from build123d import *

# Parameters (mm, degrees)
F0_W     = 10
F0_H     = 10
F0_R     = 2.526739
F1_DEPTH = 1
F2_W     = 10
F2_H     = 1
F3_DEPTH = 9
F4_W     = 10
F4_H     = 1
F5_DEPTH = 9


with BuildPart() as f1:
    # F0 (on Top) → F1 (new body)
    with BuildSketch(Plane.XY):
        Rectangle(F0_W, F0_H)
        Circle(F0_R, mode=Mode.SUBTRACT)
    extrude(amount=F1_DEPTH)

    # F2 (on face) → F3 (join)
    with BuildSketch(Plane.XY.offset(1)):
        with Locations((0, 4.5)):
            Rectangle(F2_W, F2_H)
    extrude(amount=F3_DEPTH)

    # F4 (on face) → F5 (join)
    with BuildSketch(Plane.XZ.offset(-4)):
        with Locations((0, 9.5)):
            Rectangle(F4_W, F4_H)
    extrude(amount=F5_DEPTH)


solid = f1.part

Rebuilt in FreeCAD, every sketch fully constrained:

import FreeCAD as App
import Part
import Sketcher
Q = App.Units.Quantity

doc = App.newDocument("Part")
body = doc.addObject("PartDesign::Body", "Body")

# Sketch on XY plane
sketch1 = body.newObject("Sketcher::SketchObject", "Sketch")
sketch1.AttachmentSupport = (doc.getObject("XY_Plane"), [""])
sketch1.MapMode = "FlatFace"
sketch1.addGeometry([
    Part.LineSegment(App.Vector(-5, 5, 0), App.Vector(-5, -5, 0)),  # 0
    Part.LineSegment(App.Vector(-5, -5, 0), App.Vector(5, -5, 0)),  # 1
    Part.LineSegment(App.Vector(5, -5, 0), App.Vector(5, 5, 0)),  # 2
    Part.LineSegment(App.Vector(5, 5, 0), App.Vector(-5, 5, 0)),  # 3
    Part.Circle(App.Vector(0, 0, 0), App.Vector(0, 0, 1), 2.5),  # 4
], False)
sketch1.addConstraint([
    Sketcher.Constraint("Coincident", 0, 2, 1, 1),
    Sketcher.Constraint("Coincident", 1, 2, 2, 1),
    Sketcher.Constraint("Coincident", 2, 2, 3, 1),
    Sketcher.Constraint("Coincident", 3, 2, 0, 1),
    Sketcher.Constraint("Vertical", 0),
    Sketcher.Constraint("Horizontal", 1),
    Sketcher.Constraint("Vertical", 2),
    Sketcher.Constraint("Horizontal", 3),
    Sketcher.Constraint("Coincident", 4, 3, -1, 1),
    Sketcher.Constraint("Symmetric", 0, 2, 2, 2, -1, 1),
    Sketcher.Constraint("Equal", 3, 0),
    Sketcher.Constraint("DistanceX", 1, 1, 1, 2, Q("10 mm")),
    Sketcher.Constraint("Diameter", 4, Q("5.053478 mm")),
])
pad1 = body.newObject("PartDesign::Pad", "Pad")
pad1.Profile = sketch1
pad1.Length = 1

# Sketch on XY plane
sketch2 = body.newObject("Sketcher::SketchObject", "Sketch001")
sketch2.AttachmentSupport = (doc.getObject("XY_Plane"), [""])
sketch2.MapMode = "FlatFace"
sketch2.AttachmentOffset = App.Placement(App.Vector(0, 0, 1), App.Rotation())
sketch2.addGeometry([
    Part.LineSegment(App.Vector(-5, 5, 0), App.Vector(-5, 4, 0)),
    Part.LineSegment(App.Vector(-5, 4, 0), App.Vector(5, 4, 0)),
    Part.LineSegment(App.Vector(5, 4, 0), App.Vector(5, 5, 0)),
    Part.LineSegment(App.Vector(5, 5, 0), App.Vector(-5, 5, 0)),
], False)
sketch2.addConstraint([
    Sketcher.Constraint("Coincident", 0, 2, 1, 1),
    Sketcher.Constraint("Coincident", 1, 2, 2, 1),
    Sketcher.Constraint("Coincident", 2, 2, 3, 1),
    Sketcher.Constraint("Coincident", 3, 2, 0, 1),
    Sketcher.Constraint("Vertical", 0),
    Sketcher.Constraint("Horizontal", 1),
    Sketcher.Constraint("Vertical", 2),
    Sketcher.Constraint("Horizontal", 3),
    Sketcher.Constraint("DistanceX", 1, 1, 1, 2, Q("10 mm")),
    Sketcher.Constraint("DistanceY", 0, 2, 0, 1, Q("1 mm")),
    Sketcher.Constraint("DistanceX", 0, 2, -1, 1, Q("5 mm")),
    Sketcher.Constraint("DistanceY", -1, 1, 0, 2, Q("4 mm")),
])
pad2 = body.newObject("PartDesign::Pad", "Pad001")
pad2.Profile = sketch2
pad2.Length = 9

# Sketch on XZ plane
sketch3 = body.newObject("Sketcher::SketchObject", "Sketch002")
sketch3.AttachmentSupport = (doc.getObject("XZ_Plane"), [""])
sketch3.MapMode = "FlatFace"
sketch3.AttachmentOffset = App.Placement(App.Vector(0, 0, -4), App.Rotation())
sketch3.addGeometry([
    Part.LineSegment(App.Vector(-5, 10, 0), App.Vector(-5, 9, 0)),
    Part.LineSegment(App.Vector(-5, 9, 0), App.Vector(5, 9, 0)),
    Part.LineSegment(App.Vector(5, 9, 0), App.Vector(5, 10, 0)),
    Part.LineSegment(App.Vector(5, 10, 0), App.Vector(-5, 10, 0)),
], False)
sketch3.addConstraint([
    Sketcher.Constraint("Coincident", 0, 2, 1, 1),
    Sketcher.Constraint("Coincident", 1, 2, 2, 1),
    Sketcher.Constraint("Coincident", 2, 2, 3, 1),
    Sketcher.Constraint("Coincident", 3, 2, 0, 1),
    Sketcher.Constraint("Vertical", 0),
    Sketcher.Constraint("Horizontal", 1),
    Sketcher.Constraint("Vertical", 2),
    Sketcher.Constraint("Horizontal", 3),
    Sketcher.Constraint("DistanceX", 1, 1, 1, 2, Q("10 mm")),
    Sketcher.Constraint("DistanceY", 0, 2, 0, 1, Q("1 mm")),
    Sketcher.Constraint("DistanceX", 0, 2, -1, 1, Q("5 mm")),
    Sketcher.Constraint("DistanceY", -1, 1, 0, 2, Q("9 mm")),
])
pad3 = body.newObject("PartDesign::Pad", "Pad002")
pad3.Profile = sketch3
pad3.Length = 9

doc.recompute()
